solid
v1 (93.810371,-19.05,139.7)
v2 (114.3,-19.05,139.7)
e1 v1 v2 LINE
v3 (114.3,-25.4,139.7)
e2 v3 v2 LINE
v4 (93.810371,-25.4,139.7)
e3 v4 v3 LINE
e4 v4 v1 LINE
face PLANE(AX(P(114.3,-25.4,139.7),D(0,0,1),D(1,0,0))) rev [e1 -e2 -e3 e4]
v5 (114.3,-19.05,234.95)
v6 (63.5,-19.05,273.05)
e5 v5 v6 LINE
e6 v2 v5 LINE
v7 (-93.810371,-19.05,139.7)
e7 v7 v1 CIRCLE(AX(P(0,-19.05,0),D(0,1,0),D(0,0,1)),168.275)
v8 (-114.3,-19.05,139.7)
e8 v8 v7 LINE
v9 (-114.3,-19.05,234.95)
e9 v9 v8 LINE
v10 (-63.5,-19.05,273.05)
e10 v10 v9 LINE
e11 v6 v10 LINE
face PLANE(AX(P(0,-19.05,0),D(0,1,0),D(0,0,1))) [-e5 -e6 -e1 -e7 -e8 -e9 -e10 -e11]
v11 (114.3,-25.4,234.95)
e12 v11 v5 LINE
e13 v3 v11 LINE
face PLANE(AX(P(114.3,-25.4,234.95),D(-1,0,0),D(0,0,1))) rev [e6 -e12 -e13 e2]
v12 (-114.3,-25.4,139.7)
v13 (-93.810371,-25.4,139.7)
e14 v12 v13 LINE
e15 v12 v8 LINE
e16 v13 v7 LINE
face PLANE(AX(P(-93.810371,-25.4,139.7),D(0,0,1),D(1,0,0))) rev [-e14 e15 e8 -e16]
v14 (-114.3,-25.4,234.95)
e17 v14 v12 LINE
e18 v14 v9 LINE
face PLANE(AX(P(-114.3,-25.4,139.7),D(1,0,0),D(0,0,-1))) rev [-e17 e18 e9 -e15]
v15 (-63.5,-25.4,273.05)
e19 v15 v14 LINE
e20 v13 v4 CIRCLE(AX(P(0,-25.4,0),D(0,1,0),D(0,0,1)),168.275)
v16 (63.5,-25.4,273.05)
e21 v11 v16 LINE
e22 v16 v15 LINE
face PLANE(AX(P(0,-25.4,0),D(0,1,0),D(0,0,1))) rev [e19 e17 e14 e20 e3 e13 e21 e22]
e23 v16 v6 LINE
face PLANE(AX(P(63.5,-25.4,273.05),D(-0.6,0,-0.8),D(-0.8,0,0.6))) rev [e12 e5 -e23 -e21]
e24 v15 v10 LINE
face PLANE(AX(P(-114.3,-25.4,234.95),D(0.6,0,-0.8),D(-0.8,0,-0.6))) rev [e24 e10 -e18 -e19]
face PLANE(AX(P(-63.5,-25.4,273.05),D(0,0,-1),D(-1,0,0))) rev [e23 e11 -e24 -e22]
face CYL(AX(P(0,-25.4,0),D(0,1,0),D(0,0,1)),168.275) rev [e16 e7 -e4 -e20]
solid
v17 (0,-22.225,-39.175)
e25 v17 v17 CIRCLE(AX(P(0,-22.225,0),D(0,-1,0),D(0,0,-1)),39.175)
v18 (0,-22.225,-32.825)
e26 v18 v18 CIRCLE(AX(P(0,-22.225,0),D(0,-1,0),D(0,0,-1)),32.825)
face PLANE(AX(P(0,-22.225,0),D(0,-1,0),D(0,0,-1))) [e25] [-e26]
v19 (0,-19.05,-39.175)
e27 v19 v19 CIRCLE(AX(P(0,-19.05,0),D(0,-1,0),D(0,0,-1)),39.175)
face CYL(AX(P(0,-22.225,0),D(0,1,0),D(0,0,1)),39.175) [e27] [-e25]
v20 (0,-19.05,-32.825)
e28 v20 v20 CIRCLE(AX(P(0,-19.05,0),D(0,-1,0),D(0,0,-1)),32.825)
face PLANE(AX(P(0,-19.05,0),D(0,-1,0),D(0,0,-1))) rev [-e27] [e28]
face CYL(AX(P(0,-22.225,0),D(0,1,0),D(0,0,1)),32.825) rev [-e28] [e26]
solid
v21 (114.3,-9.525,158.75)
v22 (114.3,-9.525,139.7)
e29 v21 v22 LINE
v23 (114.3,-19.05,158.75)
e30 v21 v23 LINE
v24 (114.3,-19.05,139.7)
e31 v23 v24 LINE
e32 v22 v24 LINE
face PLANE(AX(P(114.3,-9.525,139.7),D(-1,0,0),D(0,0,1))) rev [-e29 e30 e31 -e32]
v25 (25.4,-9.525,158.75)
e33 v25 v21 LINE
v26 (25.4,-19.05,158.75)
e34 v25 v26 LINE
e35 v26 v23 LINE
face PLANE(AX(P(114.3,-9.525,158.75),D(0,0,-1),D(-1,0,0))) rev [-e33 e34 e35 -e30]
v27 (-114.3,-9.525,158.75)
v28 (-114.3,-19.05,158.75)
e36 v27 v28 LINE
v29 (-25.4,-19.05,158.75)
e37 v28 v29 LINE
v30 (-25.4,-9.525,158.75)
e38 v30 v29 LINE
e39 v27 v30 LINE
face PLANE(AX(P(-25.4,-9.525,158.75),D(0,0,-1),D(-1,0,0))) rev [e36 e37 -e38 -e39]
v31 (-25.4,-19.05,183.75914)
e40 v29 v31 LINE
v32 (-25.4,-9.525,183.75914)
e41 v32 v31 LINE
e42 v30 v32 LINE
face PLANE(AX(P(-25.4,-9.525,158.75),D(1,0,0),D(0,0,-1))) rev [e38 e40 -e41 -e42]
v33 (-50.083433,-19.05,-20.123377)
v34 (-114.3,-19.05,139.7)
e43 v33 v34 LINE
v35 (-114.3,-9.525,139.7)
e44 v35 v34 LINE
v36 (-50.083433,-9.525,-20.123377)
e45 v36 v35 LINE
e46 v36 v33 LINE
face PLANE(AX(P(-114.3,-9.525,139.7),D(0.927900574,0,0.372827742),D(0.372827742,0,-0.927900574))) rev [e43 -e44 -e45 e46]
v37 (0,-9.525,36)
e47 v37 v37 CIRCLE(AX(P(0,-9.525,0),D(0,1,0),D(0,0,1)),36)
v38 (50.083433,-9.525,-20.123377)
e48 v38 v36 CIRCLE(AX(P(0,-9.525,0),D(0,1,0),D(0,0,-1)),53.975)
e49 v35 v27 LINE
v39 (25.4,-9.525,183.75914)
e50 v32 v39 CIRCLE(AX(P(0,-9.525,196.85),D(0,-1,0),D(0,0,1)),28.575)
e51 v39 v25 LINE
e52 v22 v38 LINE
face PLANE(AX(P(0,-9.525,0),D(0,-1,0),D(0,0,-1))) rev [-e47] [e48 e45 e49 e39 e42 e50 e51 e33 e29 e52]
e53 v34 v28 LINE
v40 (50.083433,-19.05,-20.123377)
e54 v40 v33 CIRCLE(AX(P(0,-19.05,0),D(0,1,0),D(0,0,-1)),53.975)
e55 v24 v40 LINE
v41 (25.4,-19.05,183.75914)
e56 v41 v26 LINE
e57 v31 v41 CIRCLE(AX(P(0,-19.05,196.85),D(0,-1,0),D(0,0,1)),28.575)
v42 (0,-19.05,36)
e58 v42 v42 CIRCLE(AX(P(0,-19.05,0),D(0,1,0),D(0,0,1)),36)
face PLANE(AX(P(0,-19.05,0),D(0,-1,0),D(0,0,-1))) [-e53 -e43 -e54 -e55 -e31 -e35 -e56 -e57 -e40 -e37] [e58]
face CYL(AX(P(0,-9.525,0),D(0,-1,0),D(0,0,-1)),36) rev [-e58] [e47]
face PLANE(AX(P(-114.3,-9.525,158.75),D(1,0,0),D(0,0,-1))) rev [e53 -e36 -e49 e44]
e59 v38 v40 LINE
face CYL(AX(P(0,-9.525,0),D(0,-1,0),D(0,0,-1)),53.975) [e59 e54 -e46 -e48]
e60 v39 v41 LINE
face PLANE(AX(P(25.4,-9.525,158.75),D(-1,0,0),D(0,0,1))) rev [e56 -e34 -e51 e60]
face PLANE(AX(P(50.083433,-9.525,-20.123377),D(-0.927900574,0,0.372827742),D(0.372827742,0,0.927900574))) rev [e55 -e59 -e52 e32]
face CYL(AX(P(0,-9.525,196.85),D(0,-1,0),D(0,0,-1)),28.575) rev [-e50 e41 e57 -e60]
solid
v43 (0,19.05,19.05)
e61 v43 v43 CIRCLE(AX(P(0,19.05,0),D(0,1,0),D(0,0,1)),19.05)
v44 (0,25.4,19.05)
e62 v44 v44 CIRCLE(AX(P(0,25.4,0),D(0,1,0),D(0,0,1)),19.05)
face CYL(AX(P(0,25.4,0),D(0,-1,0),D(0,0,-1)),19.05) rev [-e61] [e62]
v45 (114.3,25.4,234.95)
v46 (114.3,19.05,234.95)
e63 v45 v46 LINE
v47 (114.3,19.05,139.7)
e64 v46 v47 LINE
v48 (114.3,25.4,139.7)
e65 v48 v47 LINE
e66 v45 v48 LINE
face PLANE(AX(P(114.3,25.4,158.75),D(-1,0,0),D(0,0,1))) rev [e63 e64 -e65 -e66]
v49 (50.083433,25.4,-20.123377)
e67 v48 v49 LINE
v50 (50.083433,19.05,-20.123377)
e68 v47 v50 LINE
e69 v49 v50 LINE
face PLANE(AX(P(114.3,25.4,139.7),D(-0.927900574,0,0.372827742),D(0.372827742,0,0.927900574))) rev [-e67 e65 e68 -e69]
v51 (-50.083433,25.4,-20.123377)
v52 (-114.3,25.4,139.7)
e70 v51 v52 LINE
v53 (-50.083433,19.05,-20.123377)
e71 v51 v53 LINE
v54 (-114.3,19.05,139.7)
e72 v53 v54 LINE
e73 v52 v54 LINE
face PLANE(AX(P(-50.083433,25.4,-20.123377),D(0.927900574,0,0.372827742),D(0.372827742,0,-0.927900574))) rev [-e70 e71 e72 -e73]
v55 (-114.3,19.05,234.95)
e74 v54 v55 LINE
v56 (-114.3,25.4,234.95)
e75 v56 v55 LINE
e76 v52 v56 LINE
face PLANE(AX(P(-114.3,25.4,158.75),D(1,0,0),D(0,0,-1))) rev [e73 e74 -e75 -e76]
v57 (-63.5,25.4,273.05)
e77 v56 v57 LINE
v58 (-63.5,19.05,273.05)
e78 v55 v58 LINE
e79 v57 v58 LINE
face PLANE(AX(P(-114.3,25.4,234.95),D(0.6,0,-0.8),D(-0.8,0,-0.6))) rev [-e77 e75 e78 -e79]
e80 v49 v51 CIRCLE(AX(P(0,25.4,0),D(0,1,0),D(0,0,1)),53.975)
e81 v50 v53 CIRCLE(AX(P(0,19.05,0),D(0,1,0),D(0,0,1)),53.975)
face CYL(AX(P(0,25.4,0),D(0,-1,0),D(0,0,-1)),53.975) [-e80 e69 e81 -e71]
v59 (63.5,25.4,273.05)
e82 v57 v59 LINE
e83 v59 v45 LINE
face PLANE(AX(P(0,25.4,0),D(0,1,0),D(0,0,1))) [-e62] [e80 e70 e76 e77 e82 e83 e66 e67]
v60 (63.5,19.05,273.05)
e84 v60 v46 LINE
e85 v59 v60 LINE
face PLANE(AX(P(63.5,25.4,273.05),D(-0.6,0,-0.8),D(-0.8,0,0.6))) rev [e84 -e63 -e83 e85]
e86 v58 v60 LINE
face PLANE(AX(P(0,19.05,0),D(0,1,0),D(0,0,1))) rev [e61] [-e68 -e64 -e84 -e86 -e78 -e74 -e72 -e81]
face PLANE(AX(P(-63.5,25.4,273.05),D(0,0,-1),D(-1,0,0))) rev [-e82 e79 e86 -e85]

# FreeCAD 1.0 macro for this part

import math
import FreeCAD as App
import Part
import Sketcher
Q = App.Units.Quantity

doc = App.newDocument("Part")
body = doc.addObject("PartDesign::Body", "Body")

sketch1 = body.newObject("Sketcher::SketchObject", "Sketch")
sketch1.AttachmentSupport = (doc.getObject("XZ_Plane"), [""])
sketch1.MapMode = "FlatFace"
sketch1.AttachmentOffset = App.Placement(App.Vector(0, 0, 0.75 * 25.4), App.Rotation())
sketch1.addGeometry([
    Part.LineSegment(App.Vector(114, 140, 0), App.Vector(50, -20, 0)),
    Part.ArcOfCircle(Part.Circle(App.Vector(0, 0, 0), App.Vector(0, 0, 1), 54), math.radians(-90), math.radians(-22)),
    Part.ArcOfCircle(Part.Circle(App.Vector(0, 0, 0), App.Vector(0, 0, 1), 54), math.radians(-158), math.radians(-90)),
    Part.LineSegment(App.Vector(-50, -20, 0), App.Vector(-114, 140, 0)),
    Part.LineSegment(App.Vector(-114, 140, 0), App.Vector(-114, 159, 0)),
    Part.LineSegment(App.Vector(-114, 159, 0), App.Vector(-25, 159, 0)),
    Part.LineSegment(App.Vector(-25, 159, 0), App.Vector(-25, 184, 0)),
    Part.ArcOfCircle(Part.Circle(App.Vector(0, 197, 0), App.Vector(0, 0, 1), 29), math.radians(-153), math.radians(-27)),
    Part.LineSegment(App.Vector(25, 184, 0), App.Vector(25, 159, 0)),
    Part.LineSegment(App.Vector(25, 159, 0), App.Vector(114, 159, 0)),
    Part.LineSegment(App.Vector(114, 159, 0), App.Vector(114, 140, 0)),
    Part.Circle(App.Vector(0, 0, 0), App.Vector(0, 0, 1), 36),
], False)
sketch1.addConstraint([
    Sketcher.Constraint("Tangent", 0, 2, 1, 2),
    Sketcher.Constraint("Tangent", 1, 1, 2, 2),
    Sketcher.Constraint("Tangent", 2, 1, 3, 1),
    Sketcher.Constraint("Coincident", 3, 2, 4, 1),
    Sketcher.Constraint("Coincident", 4, 2, 5, 1),
    Sketcher.Constraint("Coincident", 5, 2, 6, 1),
    Sketcher.Constraint("Coincident", 6, 2, 7, 1),
    Sketcher.Constraint("Coincident", 7, 2, 8, 1),
    Sketcher.Constraint("Coincident", 8, 2, 9, 1),
    Sketcher.Constraint("Coincident", 9, 2, 10, 1),
    Sketcher.Constraint("Coincident", 10, 2, 0, 1),
    Sketcher.Constraint("Vertical", 4),
    Sketcher.Constraint("Horizontal", 5),
    Sketcher.Constraint("Vertical", 6),
    Sketcher.Constraint("Vertical", 8),
    Sketcher.Constraint("Horizontal", 9),
    Sketcher.Constraint("Vertical", 10),
    Sketcher.Constraint("Coincident", 1, 3, -1, 1),
    Sketcher.Constraint("Coincident", 11, 3, -1, 1),
    Sketcher.Constraint("Equal", 1, 2),
    Sketcher.Constraint("Symmetric", 6, 2, 7, 2, -2),
    Sketcher.Constraint("Symmetric", 4, 2, 9, 2, -2),
    Sketcher.Constraint("PointOnObject", 1, 1, -2),
    Sketcher.Constraint("Horizontal", 0, 2, 2, 1),
    Sketcher.Constraint("DistanceX", 5, 1, 5, 2, Q("3.5 in")),
    Sketcher.Constraint("DistanceX", 5, 2, -1, 1, Q("1 in")),
    Sketcher.Constraint("Radius", 1, Q("2.125 in")),
    Sketcher.Constraint("Radius", 7, Q("1.125 in")),
    Sketcher.Constraint("DistanceY", 4, 1, 4, 2, Q("0.75 in")),
    Sketcher.Constraint("DistanceY", -1, 1, 3, 2, Q("5.5 in")),
    Sketcher.Constraint("DistanceY", 4, 2, 7, 3, Q("1.5 in")),
    Sketcher.Constraint("Diameter", 11, 72.0),
])
pad1 = body.newObject("PartDesign::Pad", "Pad")
pad1.Profile = sketch1
pad1.Length = Q("0.375 in")
pad1.Reversed = True
body2 = doc.addObject("PartDesign::Body", "Body001")

sketch2 = body2.newObject("Sketcher::SketchObject", "Sketch001")
sketch2.AttachmentSupport = (doc.getObject("XZ_Plane001"), [""])
sketch2.MapMode = "FlatFace"
sketch2.AttachmentOffset = App.Placement(App.Vector(0, 0, -0.75 * 25.4), App.Rotation())
sketch2.addGeometry([
    Part.LineSegment(App.Vector(-114, 235, 0), App.Vector(-64, 273, 0)),
    Part.LineSegment(App.Vector(-64, 273, 0), App.Vector(64, 273, 0)),
    Part.LineSegment(App.Vector(64, 273, 0), App.Vector(114, 235, 0)),
    Part.LineSegment(App.Vector(114, 235, 0), App.Vector(114, 140, 0)),
    Part.LineSegment(App.Vector(114, 140, 0), App.Vector(50, -20, 0)),
    Part.ArcOfCircle(Part.Circle(App.Vector(0, 0, 0), App.Vector(0, 0, 1), 54), math.radians(-158), math.radians(-22)),
    Part.LineSegment(App.Vector(-50, -20, 0), App.Vector(-114, 140, 0)),
    Part.LineSegment(App.Vector(-114, 140, 0), App.Vector(-114, 235, 0)),
    Part.Circle(App.Vector(0, 0, 0), App.Vector(0, 0, 1), 19),
], False)
sketch2.addConstraint([
    Sketcher.Constraint("Coincident", 0, 2, 1, 1),
    Sketcher.Constraint("Coincident", 1, 2, 2, 1),
    Sketcher.Constraint("Coincident", 2, 2, 3, 1),
    Sketcher.Constraint("Coincident", 3, 2, 4, 1),
    Sketcher.Constraint("Tangent", 4, 2, 5, 2),
    Sketcher.Constraint("Tangent", 5, 1, 6, 1),
    Sketcher.Constraint("Coincident", 6, 2, 7, 1),
    Sketcher.Constraint("Coincident", 7, 2, 0, 1),
    Sketcher.Constraint("Horizontal", 1),
    Sketcher.Constraint("Vertical", 3),
    Sketcher.Constraint("Vertical", 7),
    Sketcher.Constraint("Coincident", 5, 3, -1, 1),
    Sketcher.Constraint("Coincident", 8, 3, -1, 1),
    Sketcher.Constraint("Symmetric", 3, 2, 6, 2, -2),
    Sketcher.Constraint("Horizontal", 2, 2, 7, 2),
    Sketcher.Constraint("Equal", 0, 2),
    Sketcher.Constraint("Diameter", 8, Q("1.5 in")),
    Sketcher.Constraint("DistanceX", 1, 1, 1, 2, Q("5 in")),
    Sketcher.Constraint("Radius", 5, Q("2.125 in")),
    Sketcher.Constraint("DistanceX", 1, 2, 2, 2, Q("2 in")),
    Sketcher.Constraint("Distance", 0, Q("2.5 in")),
    Sketcher.Constraint("DistanceY", 3, 2, 3, 1, Q("3.75 in")),
    Sketcher.Constraint("DistanceY", -1, 1, 3, 2, Q("5.5 in")),
])
pad2 = body2.newObject("PartDesign::Pad", "Pad001")
pad2.Profile = sketch2
pad2.Length = Q("0.25 in")
pad2.Reversed = True
body3 = doc.addObject("PartDesign::Body", "Body002")

sketch3 = body3.newObject("Sketcher::SketchObject", "Sketch002")
sketch3.AttachmentSupport = (doc.getObject("XZ_Plane002"), [""])
sketch3.MapMode = "FlatFace"
sketch3.AttachmentOffset = App.Placement(App.Vector(0, 0, 0.75 * 25.4), App.Rotation())
sketch3.addGeometry([
    Part.LineSegment(App.Vector(-114, 235, 0), App.Vector(-114, 140, 0)),
    Part.LineSegment(App.Vector(-114, 140, 0), App.Vector(-94, 140, 0)),
    Part.ArcOfCircle(Part.Circle(App.Vector(0, 0, 0), App.Vector(0, 0, 1), 168), math.radians(56), math.radians(124)),
    Part.LineSegment(App.Vector(94, 140, 0), App.Vector(114, 140, 0)),
    Part.LineSegment(App.Vector(114, 140, 0), App.Vector(114, 235, 0)),
    Part.LineSegment(App.Vector(114, 235, 0), App.Vector(64, 273, 0)),
    Part.LineSegment(App.Vector(64, 273, 0), App.Vector(-64, 273, 0)),
    Part.LineSegment(App.Vector(-64, 273, 0), App.Vector(-114, 235, 0)),
], False)
sketch3.addConstraint([
    Sketcher.Constraint("Coincident", 0, 2, 1, 1),
    Sketcher.Constraint("Coincident", 1, 2, 2, 2),
    Sketcher.Constraint("Coincident", 2, 1, 3, 1),
    Sketcher.Constraint("Coincident", 3, 2, 4, 1),
    Sketcher.Constraint("Coincident", 4, 2, 5, 1),
    Sketcher.Constraint("Coincident", 5, 2, 6, 1),
    Sketcher.Constraint("Coincident", 6, 2, 7, 1),
    Sketcher.Constraint("Coincident", 7, 2, 0, 1),
    Sketcher.Constraint("Vertical", 0),
    Sketcher.Constraint("Horizontal", 1),
    Sketcher.Constraint("Horizontal", 3),
    Sketcher.Constraint("Vertical", 4),
    Sketcher.Constraint("Horizontal", 6),
    Sketcher.Constraint("Coincident", 2, 3, -1, 1),
    Sketcher.Constraint("Symmetric", 0, 2, 3, 2, -2),
    Sketcher.Constraint("Horizontal", 4, 2, 7, 2),
    Sketcher.Constraint("Equal", 5, 7),
    Sketcher.Constraint("DistanceX", 6, 2, 6, 1, Q("5 in")),
    Sketcher.Constraint("Radius", 2, Q("6.625 in")),
    Sketcher.Constraint("DistanceX", 0, 2, 3, 2, Q("9 in")),
    Sketcher.Constraint("Distance", 5, Q("2.5 in")),
    Sketcher.Constraint("DistanceY", 0, 2, 0, 1, Q("3.75 in")),
    Sketcher.Constraint("DistanceY", -1, 1, 0, 2, Q("5.5 in")),
])
pad3 = body3.newObject("PartDesign::Pad", "Pad002")
pad3.Profile = sketch3
pad3.Length = Q("0.25 in")
body4 = doc.addObject("PartDesign::Body", "Body003")

sketch4 = body4.newObject("Sketcher::SketchObject", "Sketch003")
sketch4.AttachmentSupport = (doc.getObject("XZ_Plane003"), [""])
sketch4.MapMode = "FlatFace"
sketch4.AttachmentOffset = App.Placement(App.Vector(0, 0, 0.75 * 25.4), App.Rotation())
sketch4.addGeometry([
    Part.Circle(App.Vector(0, 0, 0), App.Vector(0, 0, 1), 39),
    Part.Circle(App.Vector(0, 0, 0), App.Vector(0, 0, 1), 33),
], False)
sketch4.addConstraint([
    Sketcher.Constraint("Coincident", 0, 3, -1, 1),
    Sketcher.Constraint("Coincident", 1, 3, -1, 1),
    Sketcher.Constraint("Diameter", 0, 78.35),
    Sketcher.Constraint("Diameter", 1, 65.65),
])
pad4 = body4.newObject("PartDesign::Pad", "Pad003")
pad4.Profile = sketch4
pad4.Length = Q("0.125 in")

doc.recompute()
